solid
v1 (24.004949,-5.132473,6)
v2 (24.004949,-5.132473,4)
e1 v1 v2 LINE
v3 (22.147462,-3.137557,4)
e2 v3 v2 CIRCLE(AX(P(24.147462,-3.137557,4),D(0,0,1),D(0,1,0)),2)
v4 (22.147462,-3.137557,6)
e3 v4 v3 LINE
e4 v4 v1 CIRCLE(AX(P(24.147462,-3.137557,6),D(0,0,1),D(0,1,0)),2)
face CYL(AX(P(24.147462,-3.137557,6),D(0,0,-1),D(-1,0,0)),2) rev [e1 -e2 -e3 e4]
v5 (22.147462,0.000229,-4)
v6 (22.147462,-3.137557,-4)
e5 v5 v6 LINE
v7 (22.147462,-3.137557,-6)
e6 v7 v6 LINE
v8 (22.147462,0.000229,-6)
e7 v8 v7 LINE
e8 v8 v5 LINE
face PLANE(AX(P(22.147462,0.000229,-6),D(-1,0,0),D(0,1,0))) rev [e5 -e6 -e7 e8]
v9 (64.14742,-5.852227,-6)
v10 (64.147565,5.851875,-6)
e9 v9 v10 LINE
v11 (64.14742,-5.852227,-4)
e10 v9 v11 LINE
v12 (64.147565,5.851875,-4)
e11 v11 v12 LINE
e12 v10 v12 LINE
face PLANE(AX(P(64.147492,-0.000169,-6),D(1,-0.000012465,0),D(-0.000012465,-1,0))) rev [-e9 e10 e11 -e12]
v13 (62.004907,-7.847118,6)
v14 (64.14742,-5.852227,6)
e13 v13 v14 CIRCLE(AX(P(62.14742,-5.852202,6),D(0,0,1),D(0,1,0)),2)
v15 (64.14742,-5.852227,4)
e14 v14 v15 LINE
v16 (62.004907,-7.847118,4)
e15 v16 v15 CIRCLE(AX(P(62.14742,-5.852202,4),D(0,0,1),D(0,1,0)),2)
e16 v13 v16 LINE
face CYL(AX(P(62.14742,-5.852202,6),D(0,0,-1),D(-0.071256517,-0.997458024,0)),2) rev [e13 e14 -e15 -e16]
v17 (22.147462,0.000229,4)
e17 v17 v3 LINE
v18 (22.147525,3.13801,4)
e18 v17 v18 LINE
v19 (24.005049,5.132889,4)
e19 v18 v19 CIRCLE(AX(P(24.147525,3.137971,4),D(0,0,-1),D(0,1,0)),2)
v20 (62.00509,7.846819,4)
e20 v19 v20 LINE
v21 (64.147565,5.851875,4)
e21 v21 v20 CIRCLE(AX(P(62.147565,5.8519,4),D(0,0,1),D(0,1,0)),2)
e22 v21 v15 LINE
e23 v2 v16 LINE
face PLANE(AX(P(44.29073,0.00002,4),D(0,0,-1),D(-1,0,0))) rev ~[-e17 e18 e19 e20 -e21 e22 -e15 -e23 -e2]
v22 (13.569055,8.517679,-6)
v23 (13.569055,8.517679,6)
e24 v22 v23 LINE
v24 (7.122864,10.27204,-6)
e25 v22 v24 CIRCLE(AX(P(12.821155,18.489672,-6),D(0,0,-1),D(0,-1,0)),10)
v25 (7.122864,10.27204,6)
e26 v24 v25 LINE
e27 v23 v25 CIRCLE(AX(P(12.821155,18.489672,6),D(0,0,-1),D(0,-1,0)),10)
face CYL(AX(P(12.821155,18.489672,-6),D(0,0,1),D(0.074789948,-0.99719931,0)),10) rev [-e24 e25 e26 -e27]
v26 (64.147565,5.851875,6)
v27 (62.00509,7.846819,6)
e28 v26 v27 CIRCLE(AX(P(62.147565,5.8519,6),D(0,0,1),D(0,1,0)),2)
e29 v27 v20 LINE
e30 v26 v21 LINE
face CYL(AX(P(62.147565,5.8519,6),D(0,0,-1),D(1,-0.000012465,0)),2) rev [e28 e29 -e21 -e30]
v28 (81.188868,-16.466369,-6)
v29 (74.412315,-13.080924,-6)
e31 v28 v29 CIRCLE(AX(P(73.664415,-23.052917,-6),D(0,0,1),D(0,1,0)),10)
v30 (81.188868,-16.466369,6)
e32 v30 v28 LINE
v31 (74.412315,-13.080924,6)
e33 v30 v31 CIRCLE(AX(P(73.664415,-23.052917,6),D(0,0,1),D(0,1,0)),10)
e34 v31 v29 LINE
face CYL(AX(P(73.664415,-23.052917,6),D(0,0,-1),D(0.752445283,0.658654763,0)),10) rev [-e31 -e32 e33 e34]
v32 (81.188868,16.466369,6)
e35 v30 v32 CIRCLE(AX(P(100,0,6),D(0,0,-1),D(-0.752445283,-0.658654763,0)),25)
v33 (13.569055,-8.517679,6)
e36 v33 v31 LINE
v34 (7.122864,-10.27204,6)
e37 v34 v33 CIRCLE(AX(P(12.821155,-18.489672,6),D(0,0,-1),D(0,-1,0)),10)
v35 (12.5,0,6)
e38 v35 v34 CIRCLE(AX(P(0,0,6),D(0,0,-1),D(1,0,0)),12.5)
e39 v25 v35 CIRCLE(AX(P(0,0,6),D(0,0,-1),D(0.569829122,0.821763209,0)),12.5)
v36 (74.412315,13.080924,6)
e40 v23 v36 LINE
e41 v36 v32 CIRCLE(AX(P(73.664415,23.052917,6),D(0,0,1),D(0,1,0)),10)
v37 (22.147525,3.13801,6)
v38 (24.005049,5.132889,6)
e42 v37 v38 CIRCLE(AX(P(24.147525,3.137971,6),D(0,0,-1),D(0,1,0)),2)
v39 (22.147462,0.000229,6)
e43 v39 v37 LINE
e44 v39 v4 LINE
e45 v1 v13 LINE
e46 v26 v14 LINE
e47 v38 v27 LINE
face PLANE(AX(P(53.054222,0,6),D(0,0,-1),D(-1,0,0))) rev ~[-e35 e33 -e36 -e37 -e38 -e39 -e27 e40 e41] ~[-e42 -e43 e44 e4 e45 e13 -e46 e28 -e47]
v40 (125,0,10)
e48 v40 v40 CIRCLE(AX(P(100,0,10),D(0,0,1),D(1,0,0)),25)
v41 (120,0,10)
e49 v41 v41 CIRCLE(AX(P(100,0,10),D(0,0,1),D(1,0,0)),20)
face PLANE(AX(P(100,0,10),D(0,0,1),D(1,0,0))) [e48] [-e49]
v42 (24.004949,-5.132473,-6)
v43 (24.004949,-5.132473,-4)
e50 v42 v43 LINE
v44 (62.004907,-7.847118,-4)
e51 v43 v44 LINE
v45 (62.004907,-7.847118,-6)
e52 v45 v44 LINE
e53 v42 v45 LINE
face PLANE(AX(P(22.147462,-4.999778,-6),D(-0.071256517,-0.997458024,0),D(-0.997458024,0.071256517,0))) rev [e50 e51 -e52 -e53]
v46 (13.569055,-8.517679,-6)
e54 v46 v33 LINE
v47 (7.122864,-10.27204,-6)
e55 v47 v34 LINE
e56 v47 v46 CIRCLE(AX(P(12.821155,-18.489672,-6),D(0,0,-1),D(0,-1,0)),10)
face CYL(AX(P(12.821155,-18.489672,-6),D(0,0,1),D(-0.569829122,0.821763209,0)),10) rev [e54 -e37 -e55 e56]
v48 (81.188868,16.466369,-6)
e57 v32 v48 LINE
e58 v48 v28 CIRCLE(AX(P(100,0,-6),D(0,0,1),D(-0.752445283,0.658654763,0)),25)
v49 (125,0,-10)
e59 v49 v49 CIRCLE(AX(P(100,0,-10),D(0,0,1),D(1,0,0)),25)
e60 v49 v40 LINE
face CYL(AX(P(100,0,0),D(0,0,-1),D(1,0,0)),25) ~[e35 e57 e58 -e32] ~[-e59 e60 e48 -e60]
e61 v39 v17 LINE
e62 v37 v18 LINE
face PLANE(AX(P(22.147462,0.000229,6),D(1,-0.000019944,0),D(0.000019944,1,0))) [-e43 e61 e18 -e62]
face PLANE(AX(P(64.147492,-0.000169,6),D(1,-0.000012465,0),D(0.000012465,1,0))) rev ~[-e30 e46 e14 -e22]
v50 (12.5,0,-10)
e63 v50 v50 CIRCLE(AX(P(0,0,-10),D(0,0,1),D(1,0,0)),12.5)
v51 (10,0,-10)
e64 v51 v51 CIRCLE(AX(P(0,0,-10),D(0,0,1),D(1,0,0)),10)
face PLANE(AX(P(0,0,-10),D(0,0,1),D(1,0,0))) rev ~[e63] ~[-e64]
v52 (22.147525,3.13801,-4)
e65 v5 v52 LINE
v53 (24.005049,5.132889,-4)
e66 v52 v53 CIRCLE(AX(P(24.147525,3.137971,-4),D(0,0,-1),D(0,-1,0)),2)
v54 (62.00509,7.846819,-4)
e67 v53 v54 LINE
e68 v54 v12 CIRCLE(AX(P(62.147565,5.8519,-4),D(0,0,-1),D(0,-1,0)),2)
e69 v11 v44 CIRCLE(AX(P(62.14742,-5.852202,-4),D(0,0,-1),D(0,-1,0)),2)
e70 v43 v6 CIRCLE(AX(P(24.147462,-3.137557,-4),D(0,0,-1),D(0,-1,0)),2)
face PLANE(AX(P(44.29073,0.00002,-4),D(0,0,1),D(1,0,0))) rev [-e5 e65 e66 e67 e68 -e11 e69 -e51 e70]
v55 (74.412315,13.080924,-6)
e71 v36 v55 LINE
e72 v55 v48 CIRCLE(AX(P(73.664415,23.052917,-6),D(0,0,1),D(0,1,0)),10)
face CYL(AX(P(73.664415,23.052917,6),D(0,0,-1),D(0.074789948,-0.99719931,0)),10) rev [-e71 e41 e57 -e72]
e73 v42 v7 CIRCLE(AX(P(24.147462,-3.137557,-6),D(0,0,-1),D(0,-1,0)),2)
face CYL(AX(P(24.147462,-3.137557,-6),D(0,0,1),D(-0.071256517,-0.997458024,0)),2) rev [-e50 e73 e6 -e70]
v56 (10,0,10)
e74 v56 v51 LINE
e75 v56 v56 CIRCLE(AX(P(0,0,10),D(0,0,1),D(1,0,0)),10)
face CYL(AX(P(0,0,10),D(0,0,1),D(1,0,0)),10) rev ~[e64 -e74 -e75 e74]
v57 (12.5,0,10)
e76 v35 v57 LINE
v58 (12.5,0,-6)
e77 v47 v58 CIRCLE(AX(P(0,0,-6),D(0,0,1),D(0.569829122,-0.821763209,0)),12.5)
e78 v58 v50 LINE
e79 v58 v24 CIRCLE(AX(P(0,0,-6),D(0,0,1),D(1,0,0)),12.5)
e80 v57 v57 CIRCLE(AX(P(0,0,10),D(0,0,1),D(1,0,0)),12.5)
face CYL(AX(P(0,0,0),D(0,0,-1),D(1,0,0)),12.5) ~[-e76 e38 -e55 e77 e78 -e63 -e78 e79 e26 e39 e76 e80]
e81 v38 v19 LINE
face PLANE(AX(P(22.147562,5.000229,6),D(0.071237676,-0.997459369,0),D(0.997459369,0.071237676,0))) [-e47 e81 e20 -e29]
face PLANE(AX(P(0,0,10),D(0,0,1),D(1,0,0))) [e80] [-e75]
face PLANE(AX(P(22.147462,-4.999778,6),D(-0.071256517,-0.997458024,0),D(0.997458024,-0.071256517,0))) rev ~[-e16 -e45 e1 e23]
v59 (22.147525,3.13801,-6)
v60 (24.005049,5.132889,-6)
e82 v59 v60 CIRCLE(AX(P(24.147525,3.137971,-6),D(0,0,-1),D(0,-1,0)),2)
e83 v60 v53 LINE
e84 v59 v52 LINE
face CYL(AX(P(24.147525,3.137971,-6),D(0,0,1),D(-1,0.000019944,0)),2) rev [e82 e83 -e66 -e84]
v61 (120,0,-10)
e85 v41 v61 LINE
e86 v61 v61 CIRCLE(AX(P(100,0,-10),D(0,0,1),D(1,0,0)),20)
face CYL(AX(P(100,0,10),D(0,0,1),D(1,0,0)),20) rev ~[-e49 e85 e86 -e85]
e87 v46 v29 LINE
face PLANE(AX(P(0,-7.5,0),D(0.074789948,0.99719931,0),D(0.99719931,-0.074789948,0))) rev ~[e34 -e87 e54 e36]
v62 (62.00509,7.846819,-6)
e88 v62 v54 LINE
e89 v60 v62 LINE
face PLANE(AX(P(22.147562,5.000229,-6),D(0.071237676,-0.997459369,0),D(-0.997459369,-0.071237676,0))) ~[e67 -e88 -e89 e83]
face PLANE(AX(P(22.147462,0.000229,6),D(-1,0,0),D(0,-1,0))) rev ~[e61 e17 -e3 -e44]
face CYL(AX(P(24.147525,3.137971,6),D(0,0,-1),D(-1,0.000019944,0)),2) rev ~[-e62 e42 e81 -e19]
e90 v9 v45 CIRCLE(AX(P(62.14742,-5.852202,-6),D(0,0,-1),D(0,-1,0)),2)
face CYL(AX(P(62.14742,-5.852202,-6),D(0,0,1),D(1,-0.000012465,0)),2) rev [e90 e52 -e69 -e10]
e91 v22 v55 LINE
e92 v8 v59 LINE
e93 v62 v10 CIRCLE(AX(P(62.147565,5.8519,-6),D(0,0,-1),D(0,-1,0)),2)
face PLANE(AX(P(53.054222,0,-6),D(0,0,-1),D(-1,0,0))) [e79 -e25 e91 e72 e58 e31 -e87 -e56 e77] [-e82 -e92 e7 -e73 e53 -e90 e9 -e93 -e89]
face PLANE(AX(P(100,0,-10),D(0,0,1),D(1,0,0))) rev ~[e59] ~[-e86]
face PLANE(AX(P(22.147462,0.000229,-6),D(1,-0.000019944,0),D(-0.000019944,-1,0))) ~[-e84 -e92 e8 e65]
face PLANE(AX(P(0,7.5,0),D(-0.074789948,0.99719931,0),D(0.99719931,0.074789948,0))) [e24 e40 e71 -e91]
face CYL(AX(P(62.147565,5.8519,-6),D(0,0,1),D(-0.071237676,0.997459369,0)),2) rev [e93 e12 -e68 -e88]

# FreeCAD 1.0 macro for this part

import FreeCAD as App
import Part
import Sketcher
Q = App.Units.Quantity


def edges_at(feature, points):
    """Names of the edges that pass closest to the given points."""
    edges = feature.Shape.Edges
    near = lambda p: min(range(len(edges)), key=lambda i: edges[i].distToShape(Part.Vertex(*p))[0])
    return sorted({f"Edge{near(p) + 1}" for p in points})


def add_polygon(sketch, points):
    """Adds a closed chain of lines whose ends are joined by coincident constraints."""
    first, n = sketch.GeometryCount, len(points)
    for a, b in zip(points, points[1:] + points[:1]):
        sketch.addGeometry(Part.LineSegment(App.Vector(*a, 0), App.Vector(*b, 0)), False)
    for i in range(n):
        sketch.addConstraint(Sketcher.Constraint("Coincident", first + i, 2, first + (i + 1) % n, 1))

doc = App.newDocument("Part")
params = doc.addObject("Spreadsheet::Sheet", "Params")
for row, (alias, value) in enumerate([
    ("sketch1_height", "15 mm"),
    ("sketch1_height2", "30 mm"),
    ("pad1_length", "12 mm"),
    ("sketch2_diameter", "50 mm"),
    ("sketch2_diameter2", "25 mm"),
    ("pad2_length", "20 mm"),
    ("sketch3_diameter", "40 mm"),
    ("sketch3_diameter2", "20 mm"),
    ("pocket1_length", "35.3576 mm"),
    ("fillet_radius", "10 mm"),
    ("sketch4_height", "5 mm"),
    ("sketch4_height2", "16 mm"),
    ("pocket2_length", "2 mm"),
    ("fillet2_radius", "2 mm"),
], start=1):
    params.set(f"A{row}", alias)
    params.set(f"B{row}", "=" + value)
    params.setAlias(f"B{row}", alias)

body = doc.addObject("PartDesign::Body", "Body")

# Sketch on XY plane
sketch1 = doc.addObject("Sketcher::SketchObject", "Sketch")
body.addObject(sketch1)
sketch1.AttachmentSupport = (doc.XY_Plane, [""])
sketch1.MapMode = "FlatFace"
add_polygon(sketch1, [(0, 7.5), (0, -7.5), (100, -15), (100, 15)])  # lines 0-3
sketch1.addConstraint([
    Sketcher.Constraint("Vertical", 0),
    Sketcher.Constraint("Vertical", 2),
    Sketcher.Constraint("Symmetric", 0, 2, 3, 2, -1, 1),
    Sketcher.Constraint("Equal", 1, 3),
    Sketcher.Constraint("DistanceX", -1, 1, 1, 2, Q("100 mm")),
    Sketcher.Constraint("DistanceY", 0, 2, 0, 1, Q("15 mm")),
    Sketcher.Constraint("DistanceY", 2, 1, 2, 2, Q("30 mm")),
])
sketch1.setExpression("Constraints[9]", "Params.sketch1_height")
sketch1.setExpression("Constraints[10]", "Params.sketch1_height2")
pad1 = doc.addObject("PartDesign::Pad", "Pad")
body.addObject(pad1)
pad1.Profile = sketch1
pad1.setExpression("Length", "Params.pad1_length")
pad1.Midplane = True

# Sketch on XY plane
sketch2 = doc.addObject("Sketcher::SketchObject", "Sketch001")
body.addObject(sketch2)
sketch2.AttachmentSupport = (doc.XY_Plane, [""])
sketch2.MapMode = "FlatFace"
sketch2.addGeometry([
    Part.Circle(App.Vector(100, 0, 0), App.Vector(0, 0, 1), 25),
    Part.Circle(App.Vector(0, 0, 0), App.Vector(0, 0, 1), 12.5),
], False)
sketch2.addConstraint([
    Sketcher.Constraint("Coincident", 1, 3, -1, 1),
    Sketcher.Constraint("PointOnObject", 0, 3, -1),
    Sketcher.Constraint("Diameter", 0, Q("50 mm")),
    Sketcher.Constraint("Diameter", 1, Q("25 mm")),
    Sketcher.Constraint("DistanceX", -1, 1, 0, 3, Q("100 mm")),
])
sketch2.setExpression("Constraints[2]", "Params.sketch2_diameter")
sketch2.setExpression("Constraints[3]", "Params.sketch2_diameter2")
pad2 = doc.addObject("PartDesign::Pad", "Pad001")
body.addObject(pad2)
pad2.Profile = sketch2
pad2.setExpression("Length", "Params.pad2_length")
pad2.Midplane = True

# Sketch on XY plane
sketch3 = doc.addObject("Sketcher::SketchObject", "Sketch002")
body.addObject(sketch3)
sketch3.AttachmentSupport = (doc.XY_Plane, [""])
sketch3.MapMode = "FlatFace"
sketch3.AttachmentOffset = App.Placement(App.Vector(0, 0, 10), App.Rotation())
sketch3.addGeometry([
    Part.Circle(App.Vector(100, 0, 0), App.Vector(0, 0, 1), 20),
    Part.Circle(App.Vector(0, 0, 0), App.Vector(0, 0, 1), 10),
], False)
sketch3.addConstraint([
    Sketcher.Constraint("Coincident", 1, 3, -1, 1),
    Sketcher.Constraint("PointOnObject", 0, 3, -1),
    Sketcher.Constraint("Diameter", 0, Q("40 mm")),
    Sketcher.Constraint("Diameter", 1, Q("20 mm")),
    Sketcher.Constraint("DistanceX", -1, 1, 0, 3, Q("100 mm")),
])
sketch3.setExpression("Constraints[2]", "Params.sketch3_diameter")
sketch3.setExpression("Constraints[3]", "Params.sketch3_diameter2")
pocket1 = doc.addObject("PartDesign::Pocket", "Pocket")
body.addObject(pocket1)
pocket1.Profile = sketch3
pocket1.setExpression("Length", "Params.pocket1_length")
doc.recompute()

fillet = doc.addObject("PartDesign::Fillet", "Fillet")
body.addObject(fillet)
fillet.Base = (pocket1, edges_at(pocket1, [
    (9.428, 8.207, 0),
    (78.906, 13.418, 0),
    (9.428, -8.207, 0),
    (78.906, -13.418, 0),
]))
fillet.setExpression("Radius", "Params.fillet_radius")

# Sketch on XY plane
sketch4 = doc.addObject("Sketcher::SketchObject", "Sketch003")
body.addObject(sketch4)
sketch4.AttachmentSupport = (doc.XY_Plane, [""])
sketch4.MapMode = "FlatFace"
sketch4.AttachmentOffset = App.Placement(App.Vector(0, 0, 6), App.Rotation())
add_polygon(sketch4, [(22.147562, 5.000229), (22.147462, 0.000229), (22.147462, -4.999778), (64.147393, -8.000173), (64.147592, 7.999835)])  # lines 0-4
sketch4.addConstraint([
    Sketcher.Constraint("Vertical", 0),
    Sketcher.Constraint("Vertical", 1),
    Sketcher.Constraint("Vertical", 3),
    Sketcher.Constraint("Equal", 0, 1),
    Sketcher.Constraint("Equal", 2, 4),
    Sketcher.Constraint("DistanceY", 0, 2, 0, 1, Q("5 mm")),
    Sketcher.Constraint("DistanceY", 3, 1, 3, 2, Q("16 mm")),
    Sketcher.Constraint("DistanceX", 1, 2, 2, 2, Q("42 mm")),
    Sketcher.Constraint("DistanceX", -1, 1, 0, 2, Q("22.1475 mm")),
    Sketcher.Constraint("DistanceY", -1, 1, 0, 2, Q("0.0002 mm")),
])
sketch4.setExpression("Constraints[10]", "Params.sketch4_height")
sketch4.setExpression("Constraints[11]", "Params.sketch4_height2")
pocket2 = doc.addObject("PartDesign::Pocket", "Pocket001")
body.addObject(pocket2)
pocket2.Profile = sketch4
pocket2.setExpression("Length", "Params.pocket2_length")
doc.recompute()

mirrored = doc.addObject("PartDesign::Mirrored", "Mirrored")
body.addObject(mirrored)
mirrored.Originals = [pocket2]
mirrored.MirrorPlane = (doc.XY_Plane, [""])
body.Tip = mirrored
doc.recompute()

fillet2 = doc.addObject("PartDesign::Fillet", "Fillet001")
body.addObject(fillet2)
fillet2.Base = (mirrored, edges_at(mirrored, [
    (22.148, 5, 5),
    (22.148, -5, 5),
    (22.148, 5, -5),
    (22.148, -5, -5),
    (64.147, 8, 5),
    (64.147, -8, 5),
    (64.147, 8, -5),
    (64.147, -8, -5),
]))
fillet2.setExpression("Radius", "Params.fillet2_radius")

doc.recompute()
